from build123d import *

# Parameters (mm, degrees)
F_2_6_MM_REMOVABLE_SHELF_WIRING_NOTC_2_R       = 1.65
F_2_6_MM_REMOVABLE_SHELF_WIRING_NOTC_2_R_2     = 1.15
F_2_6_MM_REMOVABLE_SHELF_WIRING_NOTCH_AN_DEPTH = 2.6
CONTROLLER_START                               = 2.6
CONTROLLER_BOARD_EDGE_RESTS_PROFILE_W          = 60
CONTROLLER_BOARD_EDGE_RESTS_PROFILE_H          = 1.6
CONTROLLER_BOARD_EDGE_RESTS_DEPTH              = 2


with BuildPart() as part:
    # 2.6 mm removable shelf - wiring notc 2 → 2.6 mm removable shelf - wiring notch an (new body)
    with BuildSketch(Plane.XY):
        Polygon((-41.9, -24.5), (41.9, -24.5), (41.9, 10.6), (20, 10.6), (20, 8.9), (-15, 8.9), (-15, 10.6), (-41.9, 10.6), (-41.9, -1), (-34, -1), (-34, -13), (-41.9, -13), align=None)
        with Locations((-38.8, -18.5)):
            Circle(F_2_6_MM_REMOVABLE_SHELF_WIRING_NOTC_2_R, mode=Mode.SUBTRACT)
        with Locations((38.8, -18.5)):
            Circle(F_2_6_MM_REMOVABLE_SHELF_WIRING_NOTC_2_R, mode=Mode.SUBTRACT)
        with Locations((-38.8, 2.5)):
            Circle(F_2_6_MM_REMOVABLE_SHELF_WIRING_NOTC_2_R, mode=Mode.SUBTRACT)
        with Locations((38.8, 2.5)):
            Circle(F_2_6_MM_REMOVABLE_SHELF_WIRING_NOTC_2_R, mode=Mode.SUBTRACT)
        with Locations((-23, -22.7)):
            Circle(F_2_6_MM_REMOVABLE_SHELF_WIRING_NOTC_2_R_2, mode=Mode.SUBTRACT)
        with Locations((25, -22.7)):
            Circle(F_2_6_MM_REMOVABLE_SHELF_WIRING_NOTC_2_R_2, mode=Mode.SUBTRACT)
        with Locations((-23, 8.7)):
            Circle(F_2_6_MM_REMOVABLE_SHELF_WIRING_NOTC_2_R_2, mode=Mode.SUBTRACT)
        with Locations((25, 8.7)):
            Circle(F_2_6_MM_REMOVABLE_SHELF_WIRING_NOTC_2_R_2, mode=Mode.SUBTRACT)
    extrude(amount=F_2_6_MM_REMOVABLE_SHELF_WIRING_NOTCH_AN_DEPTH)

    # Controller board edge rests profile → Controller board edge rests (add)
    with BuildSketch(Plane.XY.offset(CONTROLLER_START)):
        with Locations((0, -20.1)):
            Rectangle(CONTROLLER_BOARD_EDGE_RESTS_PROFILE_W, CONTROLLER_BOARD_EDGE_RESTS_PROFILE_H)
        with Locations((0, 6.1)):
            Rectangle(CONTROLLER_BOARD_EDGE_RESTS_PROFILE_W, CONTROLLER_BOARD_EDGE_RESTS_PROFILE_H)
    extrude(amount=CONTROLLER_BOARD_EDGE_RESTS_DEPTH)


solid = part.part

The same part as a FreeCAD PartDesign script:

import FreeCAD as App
import Part
import Sketcher

V = App.Vector

doc = App.newDocument("Part")
body = doc.addObject("PartDesign::Body", "Body")

# Sketch on XY plane
sketch1 = doc.addObject("Sketcher::SketchObject", "Sketch")
body.addObject(sketch1)
sketch1.AttachmentSupport = (doc.XY_Plane, [""])
sketch1.MapMode = "FlatFace"
sketch1.addGeometry([
    Part.LineSegment(V(-41.9, -24.5, 0), V(41.9, -24.5, 0)),  # 0
    Part.LineSegment(V(41.9, -24.5, 0), V(41.9, 10.6, 0)),  # 1
    Part.LineSegment(V(41.9, 10.6, 0), V(20, 10.6, 0)),  # 2
    Part.LineSegment(V(20, 10.6, 0), V(20, 8.9, 0)),  # 3
    Part.LineSegment(V(20, 8.9, 0), V(-15, 8.9, 0)),  # 4
    Part.LineSegment(V(-15, 8.9, 0), V(-15, 10.6, 0)),  # 5
    Part.LineSegment(V(-15, 10.6, 0), V(-41.9, 10.6, 0)),  # 6
    Part.LineSegment(V(-41.9, 10.6, 0), V(-41.9, -1, 0)),  # 7
    Part.LineSegment(V(-41.9, -1, 0), V(-34, -1, 0)),  # 8
    Part.LineSegment(V(-34, -1, 0), V(-34, -13, 0)),  # 9
    Part.LineSegment(V(-34, -13, 0), V(-41.9, -13, 0)),  # 10
    Part.LineSegment(V(-41.9, -13, 0), V(-41.9, -24.5, 0)),  # 11
    Part.Circle(V(-23, -22.7, 0), V(0, 0, 1), 1.1),  # 12
    Part.Circle(V(-38.8, -18.5, 0), V(0, 0, 1), 1.6),  # 13
    Part.Circle(V(25, -22.7, 0), V(0, 0, 1), 1.1),  # 14
    Part.Circle(V(38.8, -18.5, 0), V(0, 0, 1), 1.6),  # 15
    Part.Circle(V(-38.8, 2.5, 0), V(0, 0, 1), 1.6),  # 16
    Part.Circle(V(-23, 8.7, 0), V(0, 0, 1), 1.1),  # 17
    Part.Circle(V(38.8, 2.5, 0), V(0, 0, 1), 1.6),  # 18
    Part.Circle(V(25, 8.7, 0), V(0, 0, 1), 1.1),  # 19
], False)
sketch1.addConstraint([
    Sketcher.Constraint("Coincident", 0, 2, 1, 1),
    Sketcher.Constraint("Coincident", 1, 2, 2, 1),
    Sketcher.Constraint("Coincident", 2, 2, 3, 1),
    Sketcher.Constraint("Coincident", 3, 2, 4, 1),
    Sketcher.Constraint("Coincident", 4, 2, 5, 1),
    Sketcher.Constraint("Coincident", 5, 2, 6, 1),
    Sketcher.Constraint("Coincident", 6, 2, 7, 1),
    Sketcher.Constraint("Coincident", 7, 2, 8, 1),
    Sketcher.Constraint("Coincident", 8, 2, 9, 1),
    Sketcher.Constraint("Coincident", 9, 2, 10, 1),
    Sketcher.Constraint("Coincident", 10, 2, 11, 1),
    Sketcher.Constraint("Coincident", 11, 2, 0, 1),
    Sketcher.Constraint("Horizontal", 0),
    Sketcher.Constraint("Vertical", 1),
    Sketcher.Constraint("Horizontal", 2),
    Sketcher.Constraint("Vertical", 3),
    Sketcher.Constraint("Horizontal", 4),
    Sketcher.Constraint("Vertical", 5),
    Sketcher.Constraint("Horizontal", 6),
    Sketcher.Constraint("Vertical", 7),
    Sketcher.Constraint("Horizontal", 8),
    Sketcher.Constraint("Vertical", 9),
    Sketcher.Constraint("Horizontal", 10),
    Sketcher.Constraint("Vertical", 11),
    Sketcher.Constraint("Equal", 12, 14),
    Sketcher.Constraint("Equal", 13, 15),
    Sketcher.Constraint("Equal", 15, 16),
    Sketcher.Constraint("Equal", 14, 17),
    Sketcher.Constraint("Equal", 16, 18),
    Sketcher.Constraint("Equal", 17, 19),
    Sketcher.Constraint("Symmetric", 13, 3, 15, 3, -2),
    Sketcher.Constraint("Symmetric", 16, 3, 18, 3, -2),
    Sketcher.Constraint("Symmetric", 1, 2, 6, 2, -2),
    Sketcher.Constraint("Horizontal", 12, 3, 14, 3),
    Sketcher.Constraint("Horizontal", 17, 3, 19, 3),
    Sketcher.Constraint("Vertical", 13, 3, 16, 3),
    Sketcher.Constraint("Vertical", 12, 3, 17, 3),
    Sketcher.Constraint("Vertical", 14, 3, 19, 3),
    Sketcher.Constraint("Vertical", 7, 2, 10, 2),
    Sketcher.Constraint("Diameter", 12, 2.3),
    Sketcher.Constraint("Diameter", 13, 3.3),
    Sketcher.Constraint("DistanceX", 4, 2, 4, 1, 35.0),
    Sketcher.Constraint("DistanceY", 9, 2, 9, 1, 12.0),
    Sketcher.Constraint("DistanceX", 0, 1, 0, 2, 83.8),
    Sketcher.Constraint("DistanceX", 2, 2, 2, 1, 21.9),
    Sketcher.Constraint("DistanceX", 8, 1, 8, 2, 7.9),
    Sketcher.Constraint("DistanceY", 1, 1, 1, 2, 35.1),
    Sketcher.Constraint("DistanceY", 3, 2, 3, 1, 1.7),
    Sketcher.Constraint("DistanceY", 7, 2, 7, 1, 11.6),
    Sketcher.Constraint("DistanceX", 12, 3, -1, 1, 23.0),
    Sketcher.Constraint("DistanceX", -1, 1, 14, 3, 25.0),
    Sketcher.Constraint("DistanceY", 7, 2, -1, 1, 1.0),
    Sketcher.Constraint("DistanceY", 13, 3, 16, 3, 21.0),
    Sketcher.Constraint("DistanceY", 0, 2, 15, 3, 6.0),
    Sketcher.Constraint("DistanceY", 12, 3, -1, 1, 22.7),
    Sketcher.Constraint("DistanceX", 13, 3, -1, 1, 38.8),
    Sketcher.Constraint("DistanceY", -1, 1, 17, 3, 8.7),
])
pad1 = doc.addObject("PartDesign::Pad", "Pad")
body.addObject(pad1)
pad1.Profile = sketch1
pad1.Length = 2.6

# Sketch on XY plane
sketch2 = doc.addObject("Sketcher::SketchObject", "Sketch001")
body.addObject(sketch2)
sketch2.AttachmentSupport = (doc.XY_Plane, [""])
sketch2.MapMode = "FlatFace"
sketch2.AttachmentOffset = App.Placement(V(0, 0, 2.6), App.Rotation())
sketch2.addGeometry([
    Part.LineSegment(V(-30, -19.3, 0), V(-30, -20.9, 0)),  # 0
    Part.LineSegment(V(-30, -20.9, 0), V(30, -20.9, 0)),  # 1
    Part.LineSegment(V(30, -20.9, 0), V(30, -19.3, 0)),  # 2
    Part.LineSegment(V(30, -19.3, 0), V(-30, -19.3, 0)),  # 3
    Part.LineSegment(V(-30, 6.9, 0), V(-30, 5.3, 0)),  # 4
    Part.LineSegment(V(-30, 5.3, 0), V(30, 5.3, 0)),  # 5
    Part.LineSegment(V(30, 5.3, 0), V(30, 6.9, 0)),  # 6
    Part.LineSegment(V(30, 6.9, 0), V(-30, 6.9, 0)),  # 7
], False)
sketch2.addConstraint([
    Sketcher.Constraint("Coincident", 0, 2, 1, 1),
    Sketcher.Constraint("Coincident", 1, 2, 2, 1),
    Sketcher.Constraint("Coincident", 2, 2, 3, 1),
    Sketcher.Constraint("Coincident", 3, 2, 0, 1),
    Sketcher.Constraint("Coincident", 4, 2, 5, 1),
    Sketcher.Constraint("Coincident", 5, 2, 6, 1),
    Sketcher.Constraint("Coincident", 6, 2, 7, 1),
    Sketcher.Constraint("Coincident", 7, 2, 4, 1),
    Sketcher.Constraint("Vertical", 0),
    Sketcher.Constraint("Horizontal", 1),
    Sketcher.Constraint("Vertical", 2),
    Sketcher.Constraint("Horizontal", 3),
    Sketcher.Constraint("Vertical", 4),
    Sketcher.Constraint("Horizontal", 5),
    Sketcher.Constraint("Vertical", 6),
    Sketcher.Constraint("Horizontal", 7),
    Sketcher.Constraint("Vertical", 3, 2, 4, 2),
    Sketcher.Constraint("Vertical", 2, 2, 5, 2),
    Sketcher.Constraint("Equal", 2, 4),
    Sketcher.Constraint("DistanceX", 1, 1, 1, 2, 60.0),
    Sketcher.Constraint("DistanceY", 0, 2, 0, 1, 1.6),
    Sketcher.Constraint("DistanceX", 0, 2, -1, 1, 30.0),
    Sketcher.Constraint("DistanceY", 0, 2, -1, 1, 20.9),
    Sketcher.Constraint("DistanceY", -1, 1, 4, 2, 5.3),
])
pad2 = doc.addObject("PartDesign::Pad", "Pad001")
body.addObject(pad2)
pad2.Profile = sketch2
pad2.Length = 2

doc.recompute()
